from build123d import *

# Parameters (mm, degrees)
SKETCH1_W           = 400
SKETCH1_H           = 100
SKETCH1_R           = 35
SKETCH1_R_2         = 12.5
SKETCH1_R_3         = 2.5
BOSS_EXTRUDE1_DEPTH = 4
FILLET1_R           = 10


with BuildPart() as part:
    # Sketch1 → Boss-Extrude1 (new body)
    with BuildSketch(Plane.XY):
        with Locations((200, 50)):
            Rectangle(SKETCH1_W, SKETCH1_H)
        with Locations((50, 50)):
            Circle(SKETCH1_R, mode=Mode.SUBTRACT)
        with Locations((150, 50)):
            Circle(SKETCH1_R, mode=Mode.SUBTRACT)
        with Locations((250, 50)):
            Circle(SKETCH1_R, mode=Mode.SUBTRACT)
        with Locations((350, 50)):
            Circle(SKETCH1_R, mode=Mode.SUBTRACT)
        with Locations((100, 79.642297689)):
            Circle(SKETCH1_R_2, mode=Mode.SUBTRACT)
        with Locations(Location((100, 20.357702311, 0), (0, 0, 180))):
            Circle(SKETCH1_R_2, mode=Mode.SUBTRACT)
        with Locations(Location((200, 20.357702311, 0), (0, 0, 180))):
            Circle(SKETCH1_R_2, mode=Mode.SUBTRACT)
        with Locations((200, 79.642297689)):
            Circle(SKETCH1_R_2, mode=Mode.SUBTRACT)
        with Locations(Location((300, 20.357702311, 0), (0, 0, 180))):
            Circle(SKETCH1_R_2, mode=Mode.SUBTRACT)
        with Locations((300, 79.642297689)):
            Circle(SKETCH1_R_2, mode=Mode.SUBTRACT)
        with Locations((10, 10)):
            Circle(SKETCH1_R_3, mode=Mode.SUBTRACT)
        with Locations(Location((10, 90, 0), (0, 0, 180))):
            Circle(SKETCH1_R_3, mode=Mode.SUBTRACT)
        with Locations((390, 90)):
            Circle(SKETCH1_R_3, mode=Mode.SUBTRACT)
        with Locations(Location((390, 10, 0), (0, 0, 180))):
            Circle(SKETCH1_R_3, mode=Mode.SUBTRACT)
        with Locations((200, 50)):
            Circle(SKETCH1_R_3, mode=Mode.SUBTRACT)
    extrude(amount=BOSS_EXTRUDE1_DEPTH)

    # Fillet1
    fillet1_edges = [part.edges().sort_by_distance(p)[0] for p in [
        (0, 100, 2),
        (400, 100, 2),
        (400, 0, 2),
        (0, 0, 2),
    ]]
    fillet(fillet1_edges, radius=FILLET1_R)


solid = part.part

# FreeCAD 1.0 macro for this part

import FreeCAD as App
import Part
import Sketcher
from FreeCAD import Vector
Q = App.Units.Quantity


def edges_at(feature, points):
    """Names of the edges that pass closest to the given points."""
    edges = feature.Shape.Edges
    near = lambda p: min(range(len(edges)), key=lambda i: edges[i].distToShape(Part.Vertex(*p))[0])
    return sorted({f"Edge{near(p) + 1}" for p in points})

doc = App.newDocument("Part")
body = doc.addObject("PartDesign::Body", "Body")

# Sketch on XY plane
sketch1 = body.newObject("Sketcher::SketchObject", "Sketch")
sketch1.AttachmentSupport = (doc.getObject("XY_Plane"), [""])
sketch1.MapMode = "FlatFace"
sketch1.addGeometry([
    Part.LineSegment(Vector(0, 100, 0), Vector(0, 0, 0)),  # 0
    Part.LineSegment(Vector(0, 0, 0), Vector(400, 0, 0)),  # 1
    Part.LineSegment(Vector(400, 0, 0), Vector(400, 100, 0)),  # 2
    Part.LineSegment(Vector(400, 100, 0), Vector(0, 100, 0)),  # 3
    Part.Circle(Vector(10, 10, 0), Vector(0, 0, 1), 2.5),  # 4
    Part.Circle(Vector(100, 20.4, 0), Vector(0, 0, 1), 12.5),  # 5
    Part.Circle(Vector(200, 20.4, 0), Vector(0, 0, 1), 12.5),  # 6
    Part.Circle(Vector(390, 10, 0), Vector(0, 0, 1), 2.5),  # 7
    Part.Circle(Vector(300, 20.4, 0), Vector(0, 0, 1), 12.5),  # 8
    Part.Circle(Vector(50, 50, 0), Vector(0, 0, 1), 35),  # 9
    Part.Circle(Vector(150, 50, 0), Vector(0, 0, 1), 35),  # 10
    Part.Circle(Vector(100, 79.6, 0), Vector(0, 0, 1), 12.5),  # 11
    Part.Circle(Vector(10, 90, 0), Vector(0, 0, 1), 2.5),  # 12
    Part.Circle(Vector(200, 50, 0), Vector(0, 0, 1), 2.5),  # 13
    Part.Circle(Vector(250, 50, 0), Vector(0, 0, 1), 35),  # 14
    Part.Circle(Vector(350, 50, 0), Vector(0, 0, 1), 35),  # 15
    Part.Circle(Vector(200, 79.6, 0), Vector(0, 0, 1), 12.5),  # 16
    Part.Circle(Vector(300, 79.6, 0), Vector(0, 0, 1), 12.5),  # 17
    Part.Circle(Vector(390, 90, 0), Vector(0, 0, 1), 2.5),  # 18
], False)
sketch1.addConstraint([
    Sketcher.Constraint("Coincident", 0, 2, 1, 1),
    Sketcher.Constraint("Coincident", 1, 2, 2, 1),
    Sketcher.Constraint("Coincident", 2, 2, 3, 1),
    Sketcher.Constraint("Coincident", 3, 2, 0, 1),
    Sketcher.Constraint("Vertical", 0),
    Sketcher.Constraint("Horizontal", 1),
    Sketcher.Constraint("Vertical", 2),
    Sketcher.Constraint("Horizontal", 3),
    Sketcher.Constraint("Coincident", 0, 2, -1, 1),
    Sketcher.Constraint("Equal", 5, 6),
    Sketcher.Constraint("Equal", 4, 7),
    Sketcher.Constraint("Equal", 6, 8),
    Sketcher.Constraint("Equal", 9, 10),
    Sketcher.Constraint("Equal", 8, 11),
    Sketcher.Constraint("Equal", 7, 12),
    Sketcher.Constraint("Equal", 12, 13),
    Sketcher.Constraint("Equal", 10, 14),
    Sketcher.Constraint("Equal", 14, 15),
    Sketcher.Constraint("Equal", 11, 16),
    Sketcher.Constraint("Equal", 16, 17),
    Sketcher.Constraint("Equal", 13, 18),
    Sketcher.Constraint("Horizontal", 5, 3, 6, 3),
    Sketcher.Constraint("Horizontal", 4, 3, 7, 3),
    Sketcher.Constraint("Horizontal", 6, 3, 8, 3),
    Sketcher.Constraint("Horizontal", 9, 3, 10, 3),
    Sketcher.Constraint("Horizontal", 10, 3, 13, 3),
    Sketcher.Constraint("Horizontal", 13, 3, 14, 3),
    Sketcher.Constraint("Horizontal", 14, 3, 15, 3),
    Sketcher.Constraint("Horizontal", 11, 3, 16, 3),
    Sketcher.Constraint("Horizontal", 16, 3, 17, 3),
    Sketcher.Constraint("Horizontal", 12, 3, 18, 3),
    Sketcher.Constraint("Vertical", 5, 3, 11, 3),
    Sketcher.Constraint("Vertical", 4, 3, 12, 3),
    Sketcher.Constraint("Vertical", 6, 3, 13, 3),
    Sketcher.Constraint("Vertical", 13, 3, 16, 3),
    Sketcher.Constraint("Vertical", 8, 3, 17, 3),
    Sketcher.Constraint("Vertical", 7, 3, 18, 3),
    Sketcher.Constraint("Diameter", 4, Q("5 mm")),
    Sketcher.Constraint("Diameter", 5, Q("25 mm")),
    Sketcher.Constraint("Diameter", 9, Q("70 mm")),
    Sketcher.Constraint("DistanceX", 1, 1, 1, 2, Q("400 mm")),
    Sketcher.Constraint("DistanceY", 0, 2, 0, 1, Q("100 mm")),
    Sketcher.Constraint("DistanceX", -1, 1, 4, 3, Q("10 mm")),
    Sketcher.Constraint("DistanceY", -1, 1, 4, 3, Q("10 mm")),
    Sketcher.Constraint("DistanceX", -1, 1, 5, 3, Q("100 mm")),
    Sketcher.Constraint("DistanceX", -1, 1, 6, 3, Q("200 mm")),
    Sketcher.Constraint("DistanceX", -1, 1, 7, 3, Q("390 mm")),
    Sketcher.Constraint("DistanceX", -1, 1, 8, 3, Q("300 mm")),
    Sketcher.Constraint("DistanceX", -1, 1, 9, 3, Q("50 mm")),
    Sketcher.Constraint("DistanceY", -1, 1, 9, 3, Q("50 mm")),
    Sketcher.Constraint("DistanceX", -1, 1, 10, 3, Q("150 mm")),
    Sketcher.Constraint("DistanceY", -1, 1, 12, 3, Q("90 mm")),
    Sketcher.Constraint("DistanceX", -1, 1, 14, 3, Q("250 mm")),
    Sketcher.Constraint("DistanceX", -1, 1, 15, 3, Q("350 mm")),
    Sketcher.Constraint("DistanceY", -1, 1, 5, 3, Q("20.357702 mm")),
    Sketcher.Constraint("DistanceY", -1, 1, 11, 3, Q("79.642298 mm")),
])
pad1 = body.newObject("PartDesign::Pad", "Pad")
pad1.Profile = sketch1
pad1.Length = 4
doc.recompute()

fillet = body.newObject("PartDesign::Fillet", "Fillet")
fillet.Base = (pad1, edges_at(pad1, [
    (0, 100, 2),
    (400, 100, 2),
    (400, 0, 2),
    (0, 0, 2),
]))
fillet.Radius = 10

doc.recompute()
